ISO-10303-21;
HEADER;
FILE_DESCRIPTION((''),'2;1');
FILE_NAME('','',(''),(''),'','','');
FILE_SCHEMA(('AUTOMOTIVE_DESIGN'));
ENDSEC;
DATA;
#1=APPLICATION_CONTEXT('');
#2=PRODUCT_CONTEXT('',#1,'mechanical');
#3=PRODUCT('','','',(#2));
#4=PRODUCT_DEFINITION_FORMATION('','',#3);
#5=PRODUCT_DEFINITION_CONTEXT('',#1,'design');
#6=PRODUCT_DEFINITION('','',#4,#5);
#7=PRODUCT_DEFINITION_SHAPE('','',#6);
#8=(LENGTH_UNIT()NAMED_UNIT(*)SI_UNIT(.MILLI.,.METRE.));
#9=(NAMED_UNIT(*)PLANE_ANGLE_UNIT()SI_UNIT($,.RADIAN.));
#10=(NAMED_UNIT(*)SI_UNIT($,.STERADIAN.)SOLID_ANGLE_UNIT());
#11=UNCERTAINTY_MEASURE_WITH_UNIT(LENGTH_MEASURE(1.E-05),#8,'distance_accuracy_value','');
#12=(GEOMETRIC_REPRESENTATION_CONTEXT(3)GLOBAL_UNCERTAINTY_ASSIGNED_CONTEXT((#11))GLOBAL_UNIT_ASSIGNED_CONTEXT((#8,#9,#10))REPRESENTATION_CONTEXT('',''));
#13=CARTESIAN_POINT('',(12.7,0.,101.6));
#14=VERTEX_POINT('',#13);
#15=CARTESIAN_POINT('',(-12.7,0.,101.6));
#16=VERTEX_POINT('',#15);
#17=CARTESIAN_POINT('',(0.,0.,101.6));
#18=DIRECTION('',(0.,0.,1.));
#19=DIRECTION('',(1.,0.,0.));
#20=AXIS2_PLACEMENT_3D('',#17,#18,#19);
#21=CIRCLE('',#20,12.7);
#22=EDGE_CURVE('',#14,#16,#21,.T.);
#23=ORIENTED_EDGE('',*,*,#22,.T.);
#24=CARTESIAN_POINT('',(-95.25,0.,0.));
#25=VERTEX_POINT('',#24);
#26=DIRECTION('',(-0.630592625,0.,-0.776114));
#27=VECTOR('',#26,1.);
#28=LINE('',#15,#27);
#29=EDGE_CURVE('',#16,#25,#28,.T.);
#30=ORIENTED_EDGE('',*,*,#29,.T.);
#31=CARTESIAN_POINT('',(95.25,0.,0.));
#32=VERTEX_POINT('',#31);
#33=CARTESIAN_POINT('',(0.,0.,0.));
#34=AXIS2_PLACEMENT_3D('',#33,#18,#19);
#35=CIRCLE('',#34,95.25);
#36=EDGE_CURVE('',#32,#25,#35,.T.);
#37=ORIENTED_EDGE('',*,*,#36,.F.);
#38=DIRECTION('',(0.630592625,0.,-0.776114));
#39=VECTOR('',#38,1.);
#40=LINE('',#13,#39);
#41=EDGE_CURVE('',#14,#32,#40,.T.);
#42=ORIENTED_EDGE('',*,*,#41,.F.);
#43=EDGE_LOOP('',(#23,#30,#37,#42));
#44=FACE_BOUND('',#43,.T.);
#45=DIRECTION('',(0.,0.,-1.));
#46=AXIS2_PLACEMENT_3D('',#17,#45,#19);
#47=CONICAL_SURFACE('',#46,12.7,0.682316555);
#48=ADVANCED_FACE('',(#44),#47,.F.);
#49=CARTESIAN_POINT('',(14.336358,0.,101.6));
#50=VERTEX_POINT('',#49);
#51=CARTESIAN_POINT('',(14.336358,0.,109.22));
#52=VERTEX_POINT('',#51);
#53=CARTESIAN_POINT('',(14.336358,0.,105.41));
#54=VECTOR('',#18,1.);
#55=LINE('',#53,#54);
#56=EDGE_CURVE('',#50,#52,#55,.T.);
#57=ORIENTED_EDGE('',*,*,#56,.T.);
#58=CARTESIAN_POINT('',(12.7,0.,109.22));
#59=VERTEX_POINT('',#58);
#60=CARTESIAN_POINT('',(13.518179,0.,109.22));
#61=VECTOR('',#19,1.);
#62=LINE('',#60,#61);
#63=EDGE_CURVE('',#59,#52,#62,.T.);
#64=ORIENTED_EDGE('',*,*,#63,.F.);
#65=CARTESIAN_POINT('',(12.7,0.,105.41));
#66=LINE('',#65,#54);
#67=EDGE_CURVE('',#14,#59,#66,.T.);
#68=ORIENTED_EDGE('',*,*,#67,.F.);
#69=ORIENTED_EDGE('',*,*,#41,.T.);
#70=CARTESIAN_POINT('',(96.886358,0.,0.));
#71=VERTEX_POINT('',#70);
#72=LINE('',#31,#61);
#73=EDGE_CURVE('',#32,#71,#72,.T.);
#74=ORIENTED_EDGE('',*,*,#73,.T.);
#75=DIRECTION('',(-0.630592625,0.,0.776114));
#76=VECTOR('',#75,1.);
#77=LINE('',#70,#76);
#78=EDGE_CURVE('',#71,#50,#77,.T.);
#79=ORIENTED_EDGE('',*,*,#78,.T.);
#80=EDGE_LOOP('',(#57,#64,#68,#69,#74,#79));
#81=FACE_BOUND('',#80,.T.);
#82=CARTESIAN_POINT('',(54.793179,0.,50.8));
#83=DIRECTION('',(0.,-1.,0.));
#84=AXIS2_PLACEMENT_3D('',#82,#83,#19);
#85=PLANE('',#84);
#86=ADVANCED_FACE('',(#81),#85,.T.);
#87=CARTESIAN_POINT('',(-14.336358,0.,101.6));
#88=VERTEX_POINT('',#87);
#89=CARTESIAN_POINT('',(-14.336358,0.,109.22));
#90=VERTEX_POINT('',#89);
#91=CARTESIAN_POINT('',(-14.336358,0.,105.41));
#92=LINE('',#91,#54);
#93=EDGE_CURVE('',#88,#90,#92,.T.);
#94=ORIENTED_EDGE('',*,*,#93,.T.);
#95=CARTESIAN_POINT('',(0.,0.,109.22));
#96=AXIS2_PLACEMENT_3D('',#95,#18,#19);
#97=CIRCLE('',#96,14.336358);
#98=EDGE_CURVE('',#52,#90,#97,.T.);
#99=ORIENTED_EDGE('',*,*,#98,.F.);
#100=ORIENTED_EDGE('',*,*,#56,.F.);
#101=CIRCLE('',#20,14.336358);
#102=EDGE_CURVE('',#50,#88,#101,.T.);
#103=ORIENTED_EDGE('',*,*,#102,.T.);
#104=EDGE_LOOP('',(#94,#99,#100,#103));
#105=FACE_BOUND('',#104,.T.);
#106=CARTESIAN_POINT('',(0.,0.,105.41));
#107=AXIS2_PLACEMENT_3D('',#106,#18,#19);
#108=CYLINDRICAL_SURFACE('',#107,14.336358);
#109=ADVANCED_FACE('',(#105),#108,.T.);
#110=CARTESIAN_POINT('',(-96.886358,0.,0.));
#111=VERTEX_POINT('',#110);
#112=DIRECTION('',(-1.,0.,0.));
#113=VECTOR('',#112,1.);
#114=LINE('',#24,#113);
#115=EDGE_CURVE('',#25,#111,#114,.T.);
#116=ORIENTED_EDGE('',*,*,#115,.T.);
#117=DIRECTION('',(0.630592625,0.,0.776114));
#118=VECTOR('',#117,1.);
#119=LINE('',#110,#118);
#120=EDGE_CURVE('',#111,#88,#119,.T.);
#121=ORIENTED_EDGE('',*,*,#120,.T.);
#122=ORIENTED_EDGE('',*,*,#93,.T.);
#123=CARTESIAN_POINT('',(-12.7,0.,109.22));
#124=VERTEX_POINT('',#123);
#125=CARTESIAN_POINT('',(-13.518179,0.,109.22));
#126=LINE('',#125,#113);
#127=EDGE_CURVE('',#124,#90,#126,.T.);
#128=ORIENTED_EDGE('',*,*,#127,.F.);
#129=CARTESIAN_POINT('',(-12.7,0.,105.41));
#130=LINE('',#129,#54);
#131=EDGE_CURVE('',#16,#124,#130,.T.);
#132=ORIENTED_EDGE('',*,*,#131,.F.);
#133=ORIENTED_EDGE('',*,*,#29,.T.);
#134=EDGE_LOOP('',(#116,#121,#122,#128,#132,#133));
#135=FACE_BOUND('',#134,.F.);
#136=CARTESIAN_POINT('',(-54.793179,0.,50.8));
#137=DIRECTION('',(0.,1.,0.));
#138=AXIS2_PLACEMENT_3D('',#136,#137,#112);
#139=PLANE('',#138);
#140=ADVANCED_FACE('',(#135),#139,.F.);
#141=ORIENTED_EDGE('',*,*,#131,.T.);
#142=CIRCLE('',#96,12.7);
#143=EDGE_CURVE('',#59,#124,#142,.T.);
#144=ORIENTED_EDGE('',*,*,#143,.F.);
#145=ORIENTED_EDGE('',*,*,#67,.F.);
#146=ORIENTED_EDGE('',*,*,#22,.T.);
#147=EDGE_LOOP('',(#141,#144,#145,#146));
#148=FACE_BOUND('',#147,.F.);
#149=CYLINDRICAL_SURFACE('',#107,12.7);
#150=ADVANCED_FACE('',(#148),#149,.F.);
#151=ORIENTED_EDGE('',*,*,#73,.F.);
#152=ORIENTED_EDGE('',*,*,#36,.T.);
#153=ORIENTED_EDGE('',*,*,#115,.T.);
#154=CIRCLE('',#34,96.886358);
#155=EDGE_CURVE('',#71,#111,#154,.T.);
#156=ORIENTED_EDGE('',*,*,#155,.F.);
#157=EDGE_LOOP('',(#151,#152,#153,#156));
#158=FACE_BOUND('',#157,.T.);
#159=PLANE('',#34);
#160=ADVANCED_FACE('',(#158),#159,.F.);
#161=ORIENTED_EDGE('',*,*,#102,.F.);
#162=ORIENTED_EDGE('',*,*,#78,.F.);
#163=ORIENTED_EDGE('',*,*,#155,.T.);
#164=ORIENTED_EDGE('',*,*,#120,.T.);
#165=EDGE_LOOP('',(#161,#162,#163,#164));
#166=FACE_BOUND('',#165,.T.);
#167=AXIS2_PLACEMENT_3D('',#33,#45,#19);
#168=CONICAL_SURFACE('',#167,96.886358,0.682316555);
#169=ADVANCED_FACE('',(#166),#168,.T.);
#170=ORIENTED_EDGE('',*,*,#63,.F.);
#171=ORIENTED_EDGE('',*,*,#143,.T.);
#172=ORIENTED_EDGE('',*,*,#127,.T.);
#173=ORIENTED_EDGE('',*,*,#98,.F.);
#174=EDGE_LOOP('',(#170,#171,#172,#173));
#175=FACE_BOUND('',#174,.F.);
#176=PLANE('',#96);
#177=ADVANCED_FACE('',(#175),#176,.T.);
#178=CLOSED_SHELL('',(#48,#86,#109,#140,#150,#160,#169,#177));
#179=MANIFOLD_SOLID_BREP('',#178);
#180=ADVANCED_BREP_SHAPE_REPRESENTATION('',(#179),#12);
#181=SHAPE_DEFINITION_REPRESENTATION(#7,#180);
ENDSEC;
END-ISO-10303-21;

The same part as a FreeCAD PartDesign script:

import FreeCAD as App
import Part
import Sketcher
Q = App.Units.Quantity

doc = App.newDocument("Part")
params = doc.addObject("Spreadsheet::Sheet", "Params")
for row, (alias, value) in enumerate([
    ("sketch1_height", "0.3 in"),
    ("revolution_angle", "180 deg"),
], start=1):
    params.set(f"A{row}", alias)
    params.set(f"B{row}", "=" + value)
    params.setAlias(f"B{row}", alias)

body = doc.addObject("PartDesign::Body", "Body")

# Sketch on XZ plane
sketch1 = body.newObject("Sketcher::SketchObject", "Sketch")
sketch1.AttachmentSupport = (doc.getObject("XZ_Plane"), [""])
sketch1.MapMode = "FlatFace"
sketch1.addGeometry([
    Part.LineSegment(App.Vector(12.7, 101.6, 0), App.Vector(95.2, 0, 0)),  # 0
    Part.LineSegment(App.Vector(95.2, 0, 0), App.Vector(96.9, 0, 0)),  # 1
    Part.LineSegment(App.Vector(96.9, 0, 0), App.Vector(14.3, 101.6, 0)),  # 2
    Part.LineSegment(App.Vector(14.3, 101.6, 0), App.Vector(14.3, 109.2, 0)),  # 3
    Part.LineSegment(App.Vector(14.3, 109.2, 0), App.Vector(12.7, 109.2, 0)),  # 4
    Part.LineSegment(App.Vector(12.7, 109.2, 0), App.Vector(12.7, 101.6, 0)),  # 5
], False)
sketch1.addConstraint([
    Sketcher.Constraint("Coincident", 0, 2, 1, 1),
    Sketcher.Constraint("Coincident", 1, 2, 2, 1),
    Sketcher.Constraint("Coincident", 2, 2, 3, 1),
    Sketcher.Constraint("Coincident", 3, 2, 4, 1),
    Sketcher.Constraint("Coincident", 4, 2, 5, 1),
    Sketcher.Constraint("Coincident", 5, 2, 0, 1),
    Sketcher.Constraint("Horizontal", 1),
    Sketcher.Constraint("Vertical", 3),
    Sketcher.Constraint("Horizontal", 4),
    Sketcher.Constraint("Vertical", 5),
    Sketcher.Constraint("PointOnObject", 0, 2, -1),
    Sketcher.Constraint("Parallel", 0, 2),
    Sketcher.Constraint("Horizontal", 2, 2, 5, 2),
    Sketcher.Constraint("DistanceY", 3, 1, 3, 2, Q("0.3 in")),
    Sketcher.Constraint("DistanceY", -1, 1, 2, 2, Q("4 in")),
    Sketcher.Constraint("DistanceX", -1, 1, 4, 2, Q("0.5 in")),
    Sketcher.Constraint("DistanceX", -1, 1, 0, 2, Q("3.75 in")),
    Sketcher.Constraint("DistanceX", 1, 1, 1, 2, 1.636358),
])
sketch1.setExpression("Constraints[13]", "Params.sketch1_height")
revolution = body.newObject("PartDesign::Revolution", "Revolution")
revolution.Profile = sketch1
revolution.ReferenceAxis = (sketch1, ["V_Axis"])
revolution.setExpression("Angle", "Params.revolution_angle")

doc.recompute()
